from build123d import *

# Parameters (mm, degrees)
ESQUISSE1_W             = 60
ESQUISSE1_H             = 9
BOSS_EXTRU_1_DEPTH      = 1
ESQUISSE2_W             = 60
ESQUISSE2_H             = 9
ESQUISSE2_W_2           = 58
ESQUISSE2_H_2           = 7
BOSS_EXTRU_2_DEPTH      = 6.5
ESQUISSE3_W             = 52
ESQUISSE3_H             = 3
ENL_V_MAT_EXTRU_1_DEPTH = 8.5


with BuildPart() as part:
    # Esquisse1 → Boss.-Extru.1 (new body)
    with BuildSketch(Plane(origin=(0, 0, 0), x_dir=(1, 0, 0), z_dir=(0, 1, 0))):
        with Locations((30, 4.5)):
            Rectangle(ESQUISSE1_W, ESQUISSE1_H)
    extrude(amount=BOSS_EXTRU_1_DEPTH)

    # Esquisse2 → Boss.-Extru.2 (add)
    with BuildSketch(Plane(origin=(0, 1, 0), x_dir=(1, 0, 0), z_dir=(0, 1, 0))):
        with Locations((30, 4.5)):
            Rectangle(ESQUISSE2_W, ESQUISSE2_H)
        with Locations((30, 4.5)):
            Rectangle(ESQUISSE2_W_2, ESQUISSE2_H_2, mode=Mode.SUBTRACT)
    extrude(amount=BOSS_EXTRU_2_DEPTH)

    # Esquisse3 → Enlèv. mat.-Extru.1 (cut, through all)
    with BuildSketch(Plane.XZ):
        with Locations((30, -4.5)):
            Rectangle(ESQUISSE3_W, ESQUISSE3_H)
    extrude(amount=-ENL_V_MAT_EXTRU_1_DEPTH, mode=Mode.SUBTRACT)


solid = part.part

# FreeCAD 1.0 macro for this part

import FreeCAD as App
import Part
import Sketcher

doc = App.newDocument("Part")
body = doc.addObject("PartDesign::Body", "Body")

# Sketch on XZ plane
sketch1 = body.newObject("Sketcher::SketchObject", "Sketch")
sketch1.AttachmentSupport = (doc.getObject("XZ_Plane"), [""])
sketch1.MapMode = "FlatFace"
sketch1.addGeometry([
    Part.LineSegment(App.Vector(0, -9, 0), App.Vector(0, 0, 0)),
    Part.LineSegment(App.Vector(0, 0, 0), App.Vector(60, 0, 0)),
    Part.LineSegment(App.Vector(60, 0, 0), App.Vector(60, -9, 0)),
    Part.LineSegment(App.Vector(60, -9, 0), App.Vector(0, -9, 0)),
], False)
sketch1.addConstraint([
    Sketcher.Constraint("Coincident", 0, 2, 1, 1),
    Sketcher.Constraint("Coincident", 1, 2, 2, 1),
    Sketcher.Constraint("Coincident", 2, 2, 3, 1),
    Sketcher.Constraint("Coincident", 3, 2, 0, 1),
    Sketcher.Constraint("Vertical", 0),
    Sketcher.Constraint("Horizontal", 1),
    Sketcher.Constraint("Vertical", 2),
    Sketcher.Constraint("Horizontal", 3),
    Sketcher.Constraint("Coincident", 0, 2, -1, 1),
    Sketcher.Constraint("DistanceX", 1, 1, 1, 2, 60.0),
    Sketcher.Constraint("DistanceY", 0, 1, 0, 2, 9.0),
])
pad1 = body.newObject("PartDesign::Pad", "Pad")
pad1.Profile = sketch1
pad1.Length = 1
pad1.Reversed = True

# Sketch on XZ plane
sketch2 = body.newObject("Sketcher::SketchObject", "Sketch001")
sketch2.AttachmentSupport = (doc.getObject("XZ_Plane"), [""])
sketch2.MapMode = "FlatFace"
sketch2.AttachmentOffset = App.Placement(App.Vector(0, 0, -1), App.Rotation())
sketch2.addGeometry([
    Part.LineSegment(App.Vector(0, -9, 0), App.Vector(0, 0, 0)),  # 0
    Part.LineSegment(App.Vector(0, 0, 0), App.Vector(60, 0, 0)),  # 1
    Part.LineSegment(App.Vector(60, 0, 0), App.Vector(60, -9, 0)),  # 2
    Part.LineSegment(App.Vector(60, -9, 0), App.Vector(0, -9, 0)),  # 3
    Part.LineSegment(App.Vector(59, -1, 0), App.Vector(1, -1, 0)),  # 4
    Part.LineSegment(App.Vector(1, -1, 0), App.Vector(1, -8, 0)),  # 5
    Part.LineSegment(App.Vector(1, -8, 0), App.Vector(59, -8, 0)),  # 6
    Part.LineSegment(App.Vector(59, -8, 0), App.Vector(59, -1, 0)),  # 7
], False)
sketch2.addConstraint([
    Sketcher.Constraint("Coincident", 0, 2, 1, 1),
    Sketcher.Constraint("Coincident", 1, 2, 2, 1),
    Sketcher.Constraint("Coincident", 2, 2, 3, 1),
    Sketcher.Constraint("Coincident", 3, 2, 0, 1),
    Sketcher.Constraint("Coincident", 4, 2, 5, 1),
    Sketcher.Constraint("Coincident", 5, 2, 6, 1),
    Sketcher.Constraint("Coincident", 6, 2, 7, 1),
    Sketcher.Constraint("Coincident", 7, 2, 4, 1),
    Sketcher.Constraint("Vertical", 0),
    Sketcher.Constraint("Horizontal", 1),
    Sketcher.Constraint("Vertical", 2),
    Sketcher.Constraint("Horizontal", 3),
    Sketcher.Constraint("Horizontal", 4),
    Sketcher.Constraint("Vertical", 5),
    Sketcher.Constraint("Horizontal", 6),
    Sketcher.Constraint("Vertical", 7),
    Sketcher.Constraint("Coincident", 0, 2, -1, 1),
    Sketcher.Constraint("DistanceX", 1, 1, 1, 2, 60.0),
    Sketcher.Constraint("DistanceX", 4, 2, 4, 1, 58.0),
    Sketcher.Constraint("DistanceY", 0, 1, 0, 2, 9.0),
    Sketcher.Constraint("DistanceY", 5, 2, 5, 1, 7.0),
    Sketcher.Constraint("DistanceX", -1, 1, 4, 2, 1.0),
    Sketcher.Constraint("DistanceY", 4, 2, -1, 1, 1.0),
])
pad2 = body.newObject("PartDesign::Pad", "Pad001")
pad2.Profile = sketch2
pad2.Length = 6.5
pad2.Reversed = True

# Sketch on XZ plane
sketch3 = body.newObject("Sketcher::SketchObject", "Sketch002")
sketch3.AttachmentSupport = (doc.getObject("XZ_Plane"), [""])
sketch3.MapMode = "FlatFace"
sketch3.addGeometry([
    Part.LineSegment(App.Vector(4, -3, 0), App.Vector(4, -6, 0)),
    Part.LineSegment(App.Vector(4, -6, 0), App.Vector(56, -6, 0)),
    Part.LineSegment(App.Vector(56, -6, 0), App.Vector(56, -3, 0)),
    Part.LineSegment(App.Vector(56, -3, 0), App.Vector(4, -3, 0)),
], False)
sketch3.addConstraint([
    Sketcher.Constraint("Coincident", 0, 2, 1, 1),
    Sketcher.Constraint("Coincident", 1, 2, 2, 1),
    Sketcher.Constraint("Coincident", 2, 2, 3, 1),
    Sketcher.Constraint("Coincident", 3, 2, 0, 1),
    Sketcher.Constraint("Vertical", 0),
    Sketcher.Constraint("Horizontal", 1),
    Sketcher.Constraint("Vertical", 2),
    Sketcher.Constraint("Horizontal", 3),
    Sketcher.Constraint("DistanceX", 1, 1, 1, 2, 52.0),
    Sketcher.Constraint("DistanceY", 0, 2, 0, 1, 3.0),
    Sketcher.Constraint("DistanceX", -1, 1, 0, 2, 4.0),
    Sketcher.Constraint("DistanceY", 0, 2, -1, 1, 6.0),
])
pocket1 = body.newObject("PartDesign::Pocket", "Pocket")
pocket1.Profile = sketch3
pocket1.Type = "ThroughAll"

doc.recompute()
